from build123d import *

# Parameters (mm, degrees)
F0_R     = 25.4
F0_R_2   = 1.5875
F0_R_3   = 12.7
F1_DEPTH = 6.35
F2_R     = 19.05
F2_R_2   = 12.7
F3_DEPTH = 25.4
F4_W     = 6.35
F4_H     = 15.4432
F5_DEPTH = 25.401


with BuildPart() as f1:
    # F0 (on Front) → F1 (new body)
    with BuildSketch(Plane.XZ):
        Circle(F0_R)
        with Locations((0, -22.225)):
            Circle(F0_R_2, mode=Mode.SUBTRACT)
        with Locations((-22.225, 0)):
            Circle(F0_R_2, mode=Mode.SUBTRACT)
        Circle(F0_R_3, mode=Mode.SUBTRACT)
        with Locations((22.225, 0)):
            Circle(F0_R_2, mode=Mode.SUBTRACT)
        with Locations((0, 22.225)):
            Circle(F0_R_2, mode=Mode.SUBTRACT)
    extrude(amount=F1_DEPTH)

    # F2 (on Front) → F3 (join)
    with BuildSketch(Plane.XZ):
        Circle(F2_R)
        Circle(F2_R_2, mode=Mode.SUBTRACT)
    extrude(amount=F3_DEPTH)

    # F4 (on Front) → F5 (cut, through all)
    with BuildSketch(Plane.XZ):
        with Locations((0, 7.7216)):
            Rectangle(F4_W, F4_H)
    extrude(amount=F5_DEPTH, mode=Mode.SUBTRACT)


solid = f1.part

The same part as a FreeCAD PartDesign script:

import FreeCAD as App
import Part
import Sketcher
from FreeCAD import Vector
Q = App.Units.Quantity


def add_polygon(sketch, points):
    """Adds a closed chain of lines whose ends are joined by coincident constraints."""
    first, n = sketch.GeometryCount, len(points)
    for a, b in zip(points, points[1:] + points[:1]):
        sketch.addGeometry(Part.LineSegment(App.Vector(*a, 0), App.Vector(*b, 0)), False)
    for i in range(n):
        sketch.addConstraint(Sketcher.Constraint("Coincident", first + i, 2, first + (i + 1) % n, 1))

doc = App.newDocument("Part")
body = doc.addObject("PartDesign::Body", "Body")

# Sketch on XZ plane
sketch1 = body.newObject("Sketcher::SketchObject", "Sketch")
sketch1.AttachmentSupport = (doc.getObject("XZ_Plane"), [""])
sketch1.MapMode = "FlatFace"
sketch1.addGeometry([
    Part.Circle(Vector(0, 0, 0), Vector(0, 0, 1), 25.4),  # 0
    Part.Circle(Vector(0, -22.225, 0), Vector(0, 0, 1), 1.5875),  # 1
    Part.Circle(Vector(-22.225, 0, 0), Vector(0, 0, 1), 1.5875),  # 2
    Part.Circle(Vector(0, 0, 0), Vector(0, 0, 1), 12.7),  # 3
    Part.Circle(Vector(22.225, 0, 0), Vector(0, 0, 1), 1.5875),  # 4
    Part.Circle(Vector(0, 22.225, 0), Vector(0, 0, 1), 1.5875),  # 5
], False)
sketch1.addConstraint([
    Sketcher.Constraint("Coincident", 0, 3, -1, 1),
    Sketcher.Constraint("Coincident", 3, 3, -1, 1),
    Sketcher.Constraint("Equal", 1, 2),
    Sketcher.Constraint("Equal", 2, 4),
    Sketcher.Constraint("Equal", 4, 5),
    Sketcher.Constraint("Symmetric", 2, 3, 4, 3, -1, 1),
    Sketcher.Constraint("Symmetric", 1, 3, 5, 3, -1, 1),
    Sketcher.Constraint("PointOnObject", 1, 3, -2),
    Sketcher.Constraint("PointOnObject", 2, 3, -1),
    Sketcher.Constraint("Diameter", 0, Q("2 in")),
    Sketcher.Constraint("Diameter", 3, Q("1 in")),
    Sketcher.Constraint("Diameter", 1, Q("0.125 in")),
    Sketcher.Constraint("DistanceX", 2, 3, 4, 3, Q("1.75 in")),
    Sketcher.Constraint("DistanceY", 1, 3, 5, 3, Q("1.75 in")),
])
pad1 = body.newObject("PartDesign::Pad", "Pad")
pad1.Profile = sketch1
pad1.Length = Q("0.25 in")

# Sketch on XZ plane
sketch2 = body.newObject("Sketcher::SketchObject", "Sketch001")
sketch2.AttachmentSupport = (doc.getObject("XZ_Plane"), [""])
sketch2.MapMode = "FlatFace"
sketch2.addGeometry([
    Part.Circle(Vector(0, 0, 0), Vector(0, 0, 1), 19.05),
    Part.Circle(Vector(0, 0, 0), Vector(0, 0, 1), 12.7),
], False)
sketch2.addConstraint([
    Sketcher.Constraint("Coincident", 0, 3, -1, 1),
    Sketcher.Constraint("Coincident", 1, 3, -1, 1),
    Sketcher.Constraint("Diameter", 1, Q("1 in")),
    Sketcher.Constraint("Diameter", 0, Q("1.5 in")),
])
pad2 = body.newObject("PartDesign::Pad", "Pad001")
pad2.Profile = sketch2
pad2.Length = Q("1 in")

# Sketch on XZ plane
sketch3 = body.newObject("Sketcher::SketchObject", "Sketch002")
sketch3.AttachmentSupport = (doc.getObject("XZ_Plane"), [""])
sketch3.MapMode = "FlatFace"
add_polygon(sketch3, [(-3.175, 15.4432), (-3.175, 0), (3.175, 0), (3.175, 15.4432)])  # lines 0-3
sketch3.addConstraint([
    Sketcher.Constraint("Vertical", 0),
    Sketcher.Constraint("Horizontal", 1),
    Sketcher.Constraint("Vertical", 2),
    Sketcher.Constraint("Horizontal", 3),
    Sketcher.Constraint("Symmetric", 0, 2, 1, 2, -1, 1),
    Sketcher.Constraint("DistanceX", 1, 1, 1, 2, Q("0.25 in")),
    Sketcher.Constraint("DistanceY", 0, 2, 0, 1, Q("0.608 in")),
])
pocket1 = body.newObject("PartDesign::Pocket", "Pocket")
pocket1.Profile = sketch3
pocket1.Type = "ThroughAll"
pocket1.Reversed = True

doc.recompute()
